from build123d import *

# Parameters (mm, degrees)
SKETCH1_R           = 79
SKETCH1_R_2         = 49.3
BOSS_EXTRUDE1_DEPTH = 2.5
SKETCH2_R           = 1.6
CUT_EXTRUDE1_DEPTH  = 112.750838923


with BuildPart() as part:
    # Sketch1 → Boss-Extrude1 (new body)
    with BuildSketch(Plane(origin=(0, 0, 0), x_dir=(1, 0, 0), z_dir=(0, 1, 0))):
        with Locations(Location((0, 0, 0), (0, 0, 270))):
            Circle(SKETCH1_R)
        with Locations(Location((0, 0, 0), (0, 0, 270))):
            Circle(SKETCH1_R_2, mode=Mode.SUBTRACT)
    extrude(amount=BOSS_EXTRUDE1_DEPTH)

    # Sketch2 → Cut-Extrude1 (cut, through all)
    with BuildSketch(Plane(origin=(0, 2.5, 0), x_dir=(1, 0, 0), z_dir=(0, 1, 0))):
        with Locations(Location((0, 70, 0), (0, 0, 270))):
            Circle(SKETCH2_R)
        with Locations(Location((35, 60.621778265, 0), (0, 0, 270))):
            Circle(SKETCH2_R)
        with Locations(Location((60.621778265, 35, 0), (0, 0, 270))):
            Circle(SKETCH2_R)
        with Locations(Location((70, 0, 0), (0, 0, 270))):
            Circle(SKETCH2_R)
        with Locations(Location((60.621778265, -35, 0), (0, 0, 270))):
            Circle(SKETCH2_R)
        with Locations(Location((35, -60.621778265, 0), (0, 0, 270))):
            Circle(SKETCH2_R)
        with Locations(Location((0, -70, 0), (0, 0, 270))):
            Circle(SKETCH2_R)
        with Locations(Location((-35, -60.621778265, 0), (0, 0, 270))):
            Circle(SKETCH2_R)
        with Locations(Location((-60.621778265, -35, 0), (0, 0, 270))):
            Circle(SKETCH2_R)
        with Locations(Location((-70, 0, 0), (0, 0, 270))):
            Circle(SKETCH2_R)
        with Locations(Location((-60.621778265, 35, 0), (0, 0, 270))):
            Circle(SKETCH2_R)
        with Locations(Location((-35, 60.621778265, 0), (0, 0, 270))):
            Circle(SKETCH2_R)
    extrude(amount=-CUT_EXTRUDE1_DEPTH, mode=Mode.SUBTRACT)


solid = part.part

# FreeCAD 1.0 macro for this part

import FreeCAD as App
import Part
import Sketcher
from FreeCAD import Vector

doc = App.newDocument("Part")
params = doc.addObject("Spreadsheet::Sheet", "Params")
for row, (alias, value) in enumerate([
    ("sketch1_diameter", "158 mm"),
    ("sketch1_diameter2", "98.6 mm"),
    ("pad1_length", "2.5 mm"),
    ("sketch2_diameter", "3.2 mm"),
], start=1):
    params.set(f"A{row}", alias)
    params.set(f"B{row}", "=" + value)
    params.setAlias(f"B{row}", alias)

body = doc.addObject("PartDesign::Body", "Body")

# Sketch on XZ plane
sketch1 = doc.addObject("Sketcher::SketchObject", "Sketch")
body.addObject(sketch1)
sketch1.AttachmentSupport = (doc.XZ_Plane, [""])
sketch1.MapMode = "FlatFace"
sketch1.addGeometry([
    Part.Circle(Vector(0, 0, 0), Vector(0, 0, 1), 79),
    Part.Circle(Vector(0, 0, 0), Vector(0, 0, 1), 49),
], False)
sketch1.addConstraint([
    Sketcher.Constraint("Coincident", 0, 3, -1, 1),
    Sketcher.Constraint("Coincident", 1, 3, -1, 1),
    Sketcher.Constraint("Diameter", 0, 158.0),
    Sketcher.Constraint("Diameter", 1, 98.6),
])
sketch1.setExpression("Constraints[2]", "Params.sketch1_diameter")
sketch1.setExpression("Constraints[3]", "Params.sketch1_diameter2")
pad1 = doc.addObject("PartDesign::Pad", "Pad")
body.addObject(pad1)
pad1.Profile = sketch1
pad1.setExpression("Length", "Params.pad1_length")
pad1.Reversed = True

# Sketch on XZ plane
sketch2 = doc.addObject("Sketcher::SketchObject", "Sketch001")
body.addObject(sketch2)
sketch2.AttachmentSupport = (doc.XZ_Plane, [""])
sketch2.MapMode = "FlatFace"
sketch2.AttachmentOffset = App.Placement(Vector(0, 0, -2.5), App.Rotation())
sketch2.addGeometry([
    Part.Circle(Vector(0, -70, 0), Vector(0, 0, 1), 1.6),  # 0
    Part.Circle(Vector(35, -60.6, 0), Vector(0, 0, 1), 1.6),  # 1
    Part.Circle(Vector(60.6, -35, 0), Vector(0, 0, 1), 1.6),  # 2
    Part.Circle(Vector(70, 0, 0), Vector(0, 0, 1), 1.6),  # 3
    Part.Circle(Vector(60.6, 35, 0), Vector(0, 0, 1), 1.6),  # 4
    Part.Circle(Vector(35, 60.6, 0), Vector(0, 0, 1), 1.6),  # 5
    Part.Circle(Vector(0, 70, 0), Vector(0, 0, 1), 1.6),  # 6
    Part.Circle(Vector(-35, 60.6, 0), Vector(0, 0, 1), 1.6),  # 7
    Part.Circle(Vector(-60.6, 35, 0), Vector(0, 0, 1), 1.6),  # 8
    Part.Circle(Vector(-70, 0, 0), Vector(0, 0, 1), 1.6),  # 9
    Part.Circle(Vector(-60.6, -35, 0), Vector(0, 0, 1), 1.6),  # 10
    Part.Circle(Vector(-35, -60.6, 0), Vector(0, 0, 1), 1.6),  # 11
], False)
sketch2.addConstraint([
    Sketcher.Constraint("Equal", 0, 1),
    Sketcher.Constraint("Equal", 1, 2),
    Sketcher.Constraint("Equal", 2, 3),
    Sketcher.Constraint("Equal", 3, 4),
    Sketcher.Constraint("Equal", 4, 5),
    Sketcher.Constraint("Equal", 5, 6),
    Sketcher.Constraint("Equal", 6, 7),
    Sketcher.Constraint("Equal", 7, 8),
    Sketcher.Constraint("Equal", 8, 9),
    Sketcher.Constraint("Equal", 9, 10),
    Sketcher.Constraint("Equal", 10, 11),
    Sketcher.Constraint("Symmetric", 0, 3, 6, 3, -1, 1),
    Sketcher.Constraint("Symmetric", 1, 3, 7, 3, -1, 1),
    Sketcher.Constraint("Symmetric", 2, 3, 8, 3, -1, 1),
    Sketcher.Constraint("Symmetric", 3, 3, 9, 3, -1, 1),
    Sketcher.Constraint("Symmetric", 4, 3, 10, 3, -1, 1),
    Sketcher.Constraint("Symmetric", 5, 3, 11, 3, -1, 1),
    Sketcher.Constraint("Symmetric", 5, 3, 7, 3, -2),
    Sketcher.Constraint("Symmetric", 4, 3, 8, 3, -2),
    Sketcher.Constraint("PointOnObject", 0, 3, -2),
    Sketcher.Constraint("PointOnObject", 3, 3, -1),
    Sketcher.Constraint("Diameter", 0, 3.2),
    Sketcher.Constraint("DistanceY", 0, 3, -1, 1, 70.0),
    Sketcher.Constraint("DistanceX", -1, 1, 1, 3, 35.0),
    Sketcher.Constraint("DistanceY", 2, 3, -1, 1, 35.0),
    Sketcher.Constraint("DistanceX", -1, 1, 3, 3, 70.0),
    Sketcher.Constraint("DistanceY", 1, 3, -1, 1, 60.621778),
    Sketcher.Constraint("DistanceX", -1, 1, 2, 3, 60.621778),
])
sketch2.setExpression("Constraints[21]", "Params.sketch2_diameter")
pocket1 = doc.addObject("PartDesign::Pocket", "Pocket")
body.addObject(pocket1)
pocket1.Profile = sketch2
pocket1.Type = "ThroughAll"
pocket1.Reversed = True

doc.recompute()
